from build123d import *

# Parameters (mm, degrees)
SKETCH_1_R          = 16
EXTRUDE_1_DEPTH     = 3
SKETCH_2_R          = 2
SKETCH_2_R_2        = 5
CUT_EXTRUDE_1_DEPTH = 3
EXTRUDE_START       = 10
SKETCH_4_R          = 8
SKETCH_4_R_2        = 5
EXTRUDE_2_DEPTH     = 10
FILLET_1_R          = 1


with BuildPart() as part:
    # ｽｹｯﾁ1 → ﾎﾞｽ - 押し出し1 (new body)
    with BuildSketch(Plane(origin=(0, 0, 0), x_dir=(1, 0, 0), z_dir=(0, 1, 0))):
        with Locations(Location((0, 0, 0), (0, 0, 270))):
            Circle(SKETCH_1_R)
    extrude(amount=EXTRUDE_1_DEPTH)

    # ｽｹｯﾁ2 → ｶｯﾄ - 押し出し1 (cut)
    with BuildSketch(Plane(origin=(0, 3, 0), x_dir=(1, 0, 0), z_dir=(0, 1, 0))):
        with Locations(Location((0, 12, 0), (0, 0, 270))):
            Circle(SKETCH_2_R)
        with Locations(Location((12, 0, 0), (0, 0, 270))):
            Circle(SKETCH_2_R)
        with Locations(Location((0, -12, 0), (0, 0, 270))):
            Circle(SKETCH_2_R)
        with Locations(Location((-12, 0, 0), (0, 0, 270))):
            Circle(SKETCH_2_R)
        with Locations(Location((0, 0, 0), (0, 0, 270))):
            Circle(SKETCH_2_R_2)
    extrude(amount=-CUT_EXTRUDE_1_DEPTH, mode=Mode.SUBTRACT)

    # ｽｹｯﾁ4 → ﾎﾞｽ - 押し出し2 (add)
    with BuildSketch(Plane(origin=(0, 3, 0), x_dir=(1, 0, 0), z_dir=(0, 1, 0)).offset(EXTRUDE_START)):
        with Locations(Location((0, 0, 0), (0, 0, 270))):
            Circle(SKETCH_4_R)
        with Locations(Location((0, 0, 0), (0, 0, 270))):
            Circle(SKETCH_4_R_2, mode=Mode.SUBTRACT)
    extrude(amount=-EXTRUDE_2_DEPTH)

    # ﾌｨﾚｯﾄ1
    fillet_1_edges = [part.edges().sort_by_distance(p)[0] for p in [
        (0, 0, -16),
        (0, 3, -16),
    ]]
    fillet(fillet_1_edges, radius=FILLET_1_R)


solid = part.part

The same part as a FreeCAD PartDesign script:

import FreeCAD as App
import Part
import Sketcher


def edges_at(feature, points):
    """Names of the edges that pass closest to the given points."""
    edges = feature.Shape.Edges
    near = lambda p: min(range(len(edges)), key=lambda i: edges[i].distToShape(Part.Vertex(*p))[0])
    return sorted({f"Edge{near(p) + 1}" for p in points})

doc = App.newDocument("Part")
params = doc.addObject("Spreadsheet::Sheet", "Params")
for row, (alias, value) in enumerate([
    ("sketch1_diameter", "32 mm"),
    ("pad1_length", "3 mm"),
    ("sketch2_diameter", "4 mm"),
    ("sketch2_diameter2", "10 mm"),
    ("pocket1_length", "3 mm"),
    ("sketch3_diameter", "16 mm"),
    ("sketch3_diameter2", "10 mm"),
    ("pad2_length", "10 mm"),
    ("fillet_radius", "1 mm"),
], start=1):
    params.set(f"A{row}", alias)
    params.set(f"B{row}", "=" + value)
    params.setAlias(f"B{row}", alias)

body = doc.addObject("PartDesign::Body", "Body")

# Sketch on XZ plane
sketch1 = doc.addObject("Sketcher::SketchObject", "Sketch")
body.addObject(sketch1)
sketch1.AttachmentSupport = (doc.XZ_Plane, [""])
sketch1.MapMode = "FlatFace"
sketch1.addGeometry(Part.Circle(App.Vector(0, 0, 0), App.Vector(0, 0, 1), 16), False)
sketch1.addConstraint(Sketcher.Constraint("Coincident", 0, 3, -1, 1))
sketch1.addConstraint(Sketcher.Constraint("Diameter", 0, 32.0))
sketch1.setExpression("Constraints[1]", "Params.sketch1_diameter")
pad1 = doc.addObject("PartDesign::Pad", "Pad")
body.addObject(pad1)
pad1.Profile = sketch1
pad1.setExpression("Length", "Params.pad1_length")
pad1.Reversed = True

# Sketch on XZ plane
sketch2 = doc.addObject("Sketcher::SketchObject", "Sketch001")
body.addObject(sketch2)
sketch2.AttachmentSupport = (doc.XZ_Plane, [""])
sketch2.MapMode = "FlatFace"
sketch2.AttachmentOffset = App.Placement(App.Vector(0, 0, -3), App.Rotation())
sketch2.addGeometry(Part.Circle(App.Vector(0, -12, 0), App.Vector(0, 0, 1), 2), False)
sketch2.addGeometry(Part.Circle(App.Vector(12, 0, 0), App.Vector(0, 0, 1), 2), False)
sketch2.addGeometry(Part.Circle(App.Vector(0, 12, 0), App.Vector(0, 0, 1), 2), False)
sketch2.addGeometry(Part.Circle(App.Vector(-12, 0, 0), App.Vector(0, 0, 1), 2), False)
sketch2.addGeometry(Part.Circle(App.Vector(0, 0, 0), App.Vector(0, 0, 1), 5), False)
sketch2.addConstraint(Sketcher.Constraint("Coincident", 4, 3, -1, 1))
sketch2.addConstraint(Sketcher.Constraint("Equal", 0, 1))
sketch2.addConstraint(Sketcher.Constraint("Equal", 1, 2))
sketch2.addConstraint(Sketcher.Constraint("Equal", 2, 3))
sketch2.addConstraint(Sketcher.Constraint("Symmetric", 0, 3, 2, 3, -1, 1))
sketch2.addConstraint(Sketcher.Constraint("Symmetric", 1, 3, 3, 3, -1, 1))
sketch2.addConstraint(Sketcher.Constraint("PointOnObject", 0, 3, -2))
sketch2.addConstraint(Sketcher.Constraint("PointOnObject", 1, 3, -1))
sketch2.addConstraint(Sketcher.Constraint("Diameter", 0, 4.0))
sketch2.addConstraint(Sketcher.Constraint("Diameter", 4, 10.0))
sketch2.addConstraint(Sketcher.Constraint("DistanceY", 0, 3, -1, 1, 12.0))
sketch2.addConstraint(Sketcher.Constraint("DistanceX", -1, 1, 1, 3, 12.0))
sketch2.setExpression("Constraints[8]", "Params.sketch2_diameter")
sketch2.setExpression("Constraints[9]", "Params.sketch2_diameter2")
pocket1 = doc.addObject("PartDesign::Pocket", "Pocket")
body.addObject(pocket1)
pocket1.Profile = sketch2
pocket1.setExpression("Length", "Params.pocket1_length")
pocket1.Reversed = True

# Sketch on XZ plane
sketch3 = doc.addObject("Sketcher::SketchObject", "Sketch002")
body.addObject(sketch3)
sketch3.AttachmentSupport = (doc.XZ_Plane, [""])
sketch3.MapMode = "FlatFace"
sketch3.AttachmentOffset = App.Placement(App.Vector(0, 0, -13), App.Rotation())
sketch3.addGeometry(Part.Circle(App.Vector(0, 0, 0), App.Vector(0, 0, 1), 8), False)
sketch3.addGeometry(Part.Circle(App.Vector(0, 0, 0), App.Vector(0, 0, 1), 5), False)
sketch3.addConstraint(Sketcher.Constraint("Coincident", 0, 3, -1, 1))
sketch3.addConstraint(Sketcher.Constraint("Coincident", 1, 3, -1, 1))
sketch3.addConstraint(Sketcher.Constraint("Diameter", 0, 16.0))
sketch3.addConstraint(Sketcher.Constraint("Diameter", 1, 10.0))
sketch3.setExpression("Constraints[2]", "Params.sketch3_diameter")
sketch3.setExpression("Constraints[3]", "Params.sketch3_diameter2")
pad2 = doc.addObject("PartDesign::Pad", "Pad001")
body.addObject(pad2)
pad2.Profile = sketch3
pad2.setExpression("Length", "Params.pad2_length")
doc.recompute()

fillet = doc.addObject("PartDesign::Fillet", "Fillet")
body.addObject(fillet)
fillet.Base = (pad2, edges_at(pad2, [(0, 0, -16), (0, 3, -16)]))
fillet.setExpression("Radius", "Params.fillet_radius")

doc.recompute()
